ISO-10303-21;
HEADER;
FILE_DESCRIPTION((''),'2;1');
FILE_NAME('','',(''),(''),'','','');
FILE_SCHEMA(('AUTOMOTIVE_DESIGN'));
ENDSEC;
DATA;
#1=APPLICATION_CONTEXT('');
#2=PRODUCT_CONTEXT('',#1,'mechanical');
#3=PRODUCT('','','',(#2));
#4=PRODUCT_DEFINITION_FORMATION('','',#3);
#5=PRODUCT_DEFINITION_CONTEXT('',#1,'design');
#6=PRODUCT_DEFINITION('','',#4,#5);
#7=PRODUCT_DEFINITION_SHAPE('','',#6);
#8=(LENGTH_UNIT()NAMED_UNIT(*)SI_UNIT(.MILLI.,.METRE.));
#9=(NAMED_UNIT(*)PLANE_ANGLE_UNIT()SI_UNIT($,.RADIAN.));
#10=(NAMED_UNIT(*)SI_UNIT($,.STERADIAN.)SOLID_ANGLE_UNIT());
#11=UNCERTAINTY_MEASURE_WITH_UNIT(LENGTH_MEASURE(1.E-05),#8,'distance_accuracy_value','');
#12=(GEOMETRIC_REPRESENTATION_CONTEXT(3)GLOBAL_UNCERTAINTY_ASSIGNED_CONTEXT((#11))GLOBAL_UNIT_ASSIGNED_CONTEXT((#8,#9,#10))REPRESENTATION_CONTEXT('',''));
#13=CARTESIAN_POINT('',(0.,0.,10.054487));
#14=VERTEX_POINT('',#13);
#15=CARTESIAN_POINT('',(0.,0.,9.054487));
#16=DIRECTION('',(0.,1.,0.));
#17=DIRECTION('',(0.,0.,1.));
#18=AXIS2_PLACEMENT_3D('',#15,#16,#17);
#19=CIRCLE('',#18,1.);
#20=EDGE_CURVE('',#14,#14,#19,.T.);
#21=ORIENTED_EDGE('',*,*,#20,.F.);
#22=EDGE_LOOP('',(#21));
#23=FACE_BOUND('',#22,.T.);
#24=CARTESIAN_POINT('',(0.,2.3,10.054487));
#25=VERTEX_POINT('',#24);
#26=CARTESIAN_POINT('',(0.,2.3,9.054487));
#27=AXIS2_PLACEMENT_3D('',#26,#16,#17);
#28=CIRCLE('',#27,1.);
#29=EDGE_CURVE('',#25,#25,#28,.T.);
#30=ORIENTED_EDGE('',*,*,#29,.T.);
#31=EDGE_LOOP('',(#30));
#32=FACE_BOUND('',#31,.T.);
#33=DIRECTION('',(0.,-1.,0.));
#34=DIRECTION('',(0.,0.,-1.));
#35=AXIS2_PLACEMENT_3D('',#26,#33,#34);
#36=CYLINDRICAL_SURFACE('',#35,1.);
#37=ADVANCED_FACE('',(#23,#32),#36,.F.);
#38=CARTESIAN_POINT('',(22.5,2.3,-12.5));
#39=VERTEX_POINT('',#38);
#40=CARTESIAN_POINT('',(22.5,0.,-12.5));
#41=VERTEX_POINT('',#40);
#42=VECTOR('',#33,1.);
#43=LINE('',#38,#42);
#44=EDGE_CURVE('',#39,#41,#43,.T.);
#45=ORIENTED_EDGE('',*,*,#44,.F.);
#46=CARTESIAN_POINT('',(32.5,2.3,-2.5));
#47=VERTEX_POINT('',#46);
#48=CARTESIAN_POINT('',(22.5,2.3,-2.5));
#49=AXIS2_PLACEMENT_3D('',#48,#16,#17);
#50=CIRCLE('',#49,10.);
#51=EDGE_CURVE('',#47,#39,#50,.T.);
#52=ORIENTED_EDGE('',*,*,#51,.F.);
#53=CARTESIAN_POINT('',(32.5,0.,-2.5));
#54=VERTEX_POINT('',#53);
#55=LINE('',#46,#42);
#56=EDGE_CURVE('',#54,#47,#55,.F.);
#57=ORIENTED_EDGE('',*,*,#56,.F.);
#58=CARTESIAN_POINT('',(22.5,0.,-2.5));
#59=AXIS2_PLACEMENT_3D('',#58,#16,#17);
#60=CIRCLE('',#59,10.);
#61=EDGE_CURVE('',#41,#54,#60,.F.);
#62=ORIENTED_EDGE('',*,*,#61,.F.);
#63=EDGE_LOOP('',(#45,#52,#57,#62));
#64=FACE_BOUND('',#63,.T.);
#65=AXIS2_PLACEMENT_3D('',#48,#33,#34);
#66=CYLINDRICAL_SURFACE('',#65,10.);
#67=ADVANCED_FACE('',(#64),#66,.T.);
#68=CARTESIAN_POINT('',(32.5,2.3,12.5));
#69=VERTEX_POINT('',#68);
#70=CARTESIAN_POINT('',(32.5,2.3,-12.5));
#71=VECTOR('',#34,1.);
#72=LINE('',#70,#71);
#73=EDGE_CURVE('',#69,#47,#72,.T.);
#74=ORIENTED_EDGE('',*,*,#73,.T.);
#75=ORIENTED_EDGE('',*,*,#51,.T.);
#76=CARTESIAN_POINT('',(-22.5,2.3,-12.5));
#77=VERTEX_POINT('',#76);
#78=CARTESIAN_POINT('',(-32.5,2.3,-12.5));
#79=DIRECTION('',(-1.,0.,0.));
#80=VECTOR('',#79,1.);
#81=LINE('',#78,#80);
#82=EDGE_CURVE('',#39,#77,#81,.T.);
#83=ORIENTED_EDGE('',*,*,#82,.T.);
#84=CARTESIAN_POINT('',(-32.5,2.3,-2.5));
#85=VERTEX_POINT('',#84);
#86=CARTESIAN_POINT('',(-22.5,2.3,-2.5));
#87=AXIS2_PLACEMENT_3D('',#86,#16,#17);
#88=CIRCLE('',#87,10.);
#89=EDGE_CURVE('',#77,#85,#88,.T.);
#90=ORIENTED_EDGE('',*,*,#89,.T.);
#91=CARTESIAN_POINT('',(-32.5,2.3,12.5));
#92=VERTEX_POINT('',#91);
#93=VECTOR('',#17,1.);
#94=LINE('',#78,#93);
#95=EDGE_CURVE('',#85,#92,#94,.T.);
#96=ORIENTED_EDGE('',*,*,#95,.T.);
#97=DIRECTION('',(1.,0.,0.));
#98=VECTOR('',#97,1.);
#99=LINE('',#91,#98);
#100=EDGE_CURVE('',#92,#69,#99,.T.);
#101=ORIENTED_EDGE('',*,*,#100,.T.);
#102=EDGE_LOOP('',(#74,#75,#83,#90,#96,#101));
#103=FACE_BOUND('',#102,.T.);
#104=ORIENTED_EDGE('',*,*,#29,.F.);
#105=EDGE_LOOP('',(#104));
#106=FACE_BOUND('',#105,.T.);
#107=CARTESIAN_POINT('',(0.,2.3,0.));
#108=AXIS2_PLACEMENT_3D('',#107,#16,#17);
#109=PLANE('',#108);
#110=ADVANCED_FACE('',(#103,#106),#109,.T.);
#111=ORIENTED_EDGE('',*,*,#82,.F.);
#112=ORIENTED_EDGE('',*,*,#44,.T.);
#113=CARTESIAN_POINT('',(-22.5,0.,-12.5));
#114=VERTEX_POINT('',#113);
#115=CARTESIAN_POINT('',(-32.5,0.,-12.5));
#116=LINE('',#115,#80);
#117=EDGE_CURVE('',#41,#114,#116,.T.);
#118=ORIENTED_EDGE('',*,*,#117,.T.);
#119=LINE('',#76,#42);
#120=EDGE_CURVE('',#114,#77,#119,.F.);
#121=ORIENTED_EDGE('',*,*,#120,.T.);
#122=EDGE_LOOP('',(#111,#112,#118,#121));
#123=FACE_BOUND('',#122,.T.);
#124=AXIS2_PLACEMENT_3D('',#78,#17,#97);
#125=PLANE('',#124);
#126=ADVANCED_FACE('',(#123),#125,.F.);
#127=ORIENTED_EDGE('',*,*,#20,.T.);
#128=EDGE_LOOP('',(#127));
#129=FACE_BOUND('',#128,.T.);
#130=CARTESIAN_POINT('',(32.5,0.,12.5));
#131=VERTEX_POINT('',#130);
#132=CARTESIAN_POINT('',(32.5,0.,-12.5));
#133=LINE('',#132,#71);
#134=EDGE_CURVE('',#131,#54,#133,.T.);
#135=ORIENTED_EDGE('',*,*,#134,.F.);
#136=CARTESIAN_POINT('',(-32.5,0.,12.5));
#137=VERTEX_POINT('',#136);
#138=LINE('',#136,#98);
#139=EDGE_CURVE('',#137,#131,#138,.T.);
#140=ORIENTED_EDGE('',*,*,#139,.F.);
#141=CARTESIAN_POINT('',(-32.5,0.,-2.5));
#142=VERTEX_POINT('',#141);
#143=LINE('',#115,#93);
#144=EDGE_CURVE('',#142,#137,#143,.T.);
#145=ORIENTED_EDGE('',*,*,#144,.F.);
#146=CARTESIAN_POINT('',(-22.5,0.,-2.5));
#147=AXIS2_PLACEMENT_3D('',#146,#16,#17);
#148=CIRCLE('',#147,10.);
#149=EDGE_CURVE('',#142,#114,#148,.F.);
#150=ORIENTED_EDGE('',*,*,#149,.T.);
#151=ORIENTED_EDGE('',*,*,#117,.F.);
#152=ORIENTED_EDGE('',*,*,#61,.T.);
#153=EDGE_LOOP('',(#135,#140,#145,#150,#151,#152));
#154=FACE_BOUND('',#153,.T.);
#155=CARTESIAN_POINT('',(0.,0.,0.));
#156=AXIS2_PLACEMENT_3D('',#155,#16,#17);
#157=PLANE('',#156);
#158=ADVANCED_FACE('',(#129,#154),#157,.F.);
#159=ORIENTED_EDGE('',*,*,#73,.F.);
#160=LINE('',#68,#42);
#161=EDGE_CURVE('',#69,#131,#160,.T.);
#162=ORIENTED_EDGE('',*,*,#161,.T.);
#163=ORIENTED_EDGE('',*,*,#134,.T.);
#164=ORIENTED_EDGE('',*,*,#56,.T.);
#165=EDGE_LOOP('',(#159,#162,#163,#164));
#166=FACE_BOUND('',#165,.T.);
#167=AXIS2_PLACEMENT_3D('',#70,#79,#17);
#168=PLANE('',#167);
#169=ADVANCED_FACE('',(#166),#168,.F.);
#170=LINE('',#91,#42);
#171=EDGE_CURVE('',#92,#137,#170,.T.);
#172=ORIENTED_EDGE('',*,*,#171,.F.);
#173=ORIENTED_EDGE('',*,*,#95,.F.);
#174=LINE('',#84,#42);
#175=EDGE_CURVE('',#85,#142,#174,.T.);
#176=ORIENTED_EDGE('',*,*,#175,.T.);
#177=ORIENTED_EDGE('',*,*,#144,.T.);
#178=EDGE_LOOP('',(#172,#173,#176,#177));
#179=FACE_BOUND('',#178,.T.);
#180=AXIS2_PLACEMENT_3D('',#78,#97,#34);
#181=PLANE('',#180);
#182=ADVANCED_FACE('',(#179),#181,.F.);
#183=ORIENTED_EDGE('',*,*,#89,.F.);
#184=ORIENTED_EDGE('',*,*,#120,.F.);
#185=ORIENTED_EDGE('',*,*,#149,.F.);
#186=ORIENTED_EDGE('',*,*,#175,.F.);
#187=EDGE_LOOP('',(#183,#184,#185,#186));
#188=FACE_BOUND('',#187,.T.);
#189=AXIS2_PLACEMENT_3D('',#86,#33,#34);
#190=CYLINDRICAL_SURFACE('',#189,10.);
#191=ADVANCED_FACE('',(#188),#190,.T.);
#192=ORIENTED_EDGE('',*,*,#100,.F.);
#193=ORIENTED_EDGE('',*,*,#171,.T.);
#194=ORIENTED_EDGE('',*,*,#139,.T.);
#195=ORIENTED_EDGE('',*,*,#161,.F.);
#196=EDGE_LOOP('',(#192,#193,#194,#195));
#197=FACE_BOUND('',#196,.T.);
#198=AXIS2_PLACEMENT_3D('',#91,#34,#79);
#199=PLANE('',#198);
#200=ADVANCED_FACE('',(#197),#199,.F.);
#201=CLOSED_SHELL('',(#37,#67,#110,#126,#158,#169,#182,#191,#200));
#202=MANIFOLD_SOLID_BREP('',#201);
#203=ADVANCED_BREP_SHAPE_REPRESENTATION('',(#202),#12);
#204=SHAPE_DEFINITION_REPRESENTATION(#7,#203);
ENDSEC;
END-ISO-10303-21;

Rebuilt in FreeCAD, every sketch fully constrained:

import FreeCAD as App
import Part
import Sketcher

V = App.Vector
Q = App.Units.Quantity


def edges_at(feature, points):
    """Names of the edges that pass closest to the given points."""
    edges = feature.Shape.Edges
    near = lambda p: min(range(len(edges)), key=lambda i: edges[i].distToShape(Part.Vertex(*p))[0])
    return sorted({f"Edge{near(p) + 1}" for p in points})

doc = App.newDocument("Part")
body = doc.addObject("PartDesign::Body", "Body")

# Sketch on XZ plane
sketch1 = body.newObject("Sketcher::SketchObject", "Sketch")
sketch1.AttachmentSupport = (doc.getObject("XZ_Plane"), [""])
sketch1.MapMode = "FlatFace"
sketch1.addGeometry(Part.LineSegment(V(-32.5, -12.5, 0), V(-32.5, 12.5, 0)), False)
sketch1.addGeometry(Part.LineSegment(V(-32.5, 12.5, 0), V(32.5, 12.5, 0)), False)
sketch1.addGeometry(Part.LineSegment(V(32.5, 12.5, 0), V(32.5, -12.5, 0)), False)
sketch1.addGeometry(Part.LineSegment(V(32.5, -12.5, 0), V(-32.5, -12.5, 0)), False)
sketch1.addGeometry(Part.Circle(V(0, 9.1, 0), V(0, 0, 1), 1), False)
sketch1.addConstraint(Sketcher.Constraint("Coincident", 0, 2, 1, 1))
sketch1.addConstraint(Sketcher.Constraint("Coincident", 1, 2, 2, 1))
sketch1.addConstraint(Sketcher.Constraint("Coincident", 2, 2, 3, 1))
sketch1.addConstraint(Sketcher.Constraint("Coincident", 3, 2, 0, 1))
sketch1.addConstraint(Sketcher.Constraint("Vertical", 0))
sketch1.addConstraint(Sketcher.Constraint("Horizontal", 1))
sketch1.addConstraint(Sketcher.Constraint("Vertical", 2))
sketch1.addConstraint(Sketcher.Constraint("Horizontal", 3))
sketch1.addConstraint(Sketcher.Constraint("Symmetric", 0, 2, 2, 2, -1, 1))
sketch1.addConstraint(Sketcher.Constraint("PointOnObject", 4, 3, -2))
sketch1.addConstraint(Sketcher.Constraint("Diameter", 4, Q("2 mm")))
sketch1.addConstraint(Sketcher.Constraint("DistanceX", 1, 1, 1, 2, Q("65 mm")))
sketch1.addConstraint(Sketcher.Constraint("DistanceY", 0, 1, 0, 2, Q("25 mm")))
sketch1.addConstraint(Sketcher.Constraint("DistanceY", -1, 1, 4, 3, Q("9.054487 mm")))
pad1 = body.newObject("PartDesign::Pad", "Pad")
pad1.Profile = sketch1
pad1.Length = 2.3
pad1.Reversed = True
doc.recompute()

fillet = body.newObject("PartDesign::Fillet", "Fillet")
fillet.Base = (pad1, edges_at(pad1, [(-32.5, 1.15, -12.5), (32.5, 1.15, -12.5)]))
fillet.Radius = 10

doc.recompute()
